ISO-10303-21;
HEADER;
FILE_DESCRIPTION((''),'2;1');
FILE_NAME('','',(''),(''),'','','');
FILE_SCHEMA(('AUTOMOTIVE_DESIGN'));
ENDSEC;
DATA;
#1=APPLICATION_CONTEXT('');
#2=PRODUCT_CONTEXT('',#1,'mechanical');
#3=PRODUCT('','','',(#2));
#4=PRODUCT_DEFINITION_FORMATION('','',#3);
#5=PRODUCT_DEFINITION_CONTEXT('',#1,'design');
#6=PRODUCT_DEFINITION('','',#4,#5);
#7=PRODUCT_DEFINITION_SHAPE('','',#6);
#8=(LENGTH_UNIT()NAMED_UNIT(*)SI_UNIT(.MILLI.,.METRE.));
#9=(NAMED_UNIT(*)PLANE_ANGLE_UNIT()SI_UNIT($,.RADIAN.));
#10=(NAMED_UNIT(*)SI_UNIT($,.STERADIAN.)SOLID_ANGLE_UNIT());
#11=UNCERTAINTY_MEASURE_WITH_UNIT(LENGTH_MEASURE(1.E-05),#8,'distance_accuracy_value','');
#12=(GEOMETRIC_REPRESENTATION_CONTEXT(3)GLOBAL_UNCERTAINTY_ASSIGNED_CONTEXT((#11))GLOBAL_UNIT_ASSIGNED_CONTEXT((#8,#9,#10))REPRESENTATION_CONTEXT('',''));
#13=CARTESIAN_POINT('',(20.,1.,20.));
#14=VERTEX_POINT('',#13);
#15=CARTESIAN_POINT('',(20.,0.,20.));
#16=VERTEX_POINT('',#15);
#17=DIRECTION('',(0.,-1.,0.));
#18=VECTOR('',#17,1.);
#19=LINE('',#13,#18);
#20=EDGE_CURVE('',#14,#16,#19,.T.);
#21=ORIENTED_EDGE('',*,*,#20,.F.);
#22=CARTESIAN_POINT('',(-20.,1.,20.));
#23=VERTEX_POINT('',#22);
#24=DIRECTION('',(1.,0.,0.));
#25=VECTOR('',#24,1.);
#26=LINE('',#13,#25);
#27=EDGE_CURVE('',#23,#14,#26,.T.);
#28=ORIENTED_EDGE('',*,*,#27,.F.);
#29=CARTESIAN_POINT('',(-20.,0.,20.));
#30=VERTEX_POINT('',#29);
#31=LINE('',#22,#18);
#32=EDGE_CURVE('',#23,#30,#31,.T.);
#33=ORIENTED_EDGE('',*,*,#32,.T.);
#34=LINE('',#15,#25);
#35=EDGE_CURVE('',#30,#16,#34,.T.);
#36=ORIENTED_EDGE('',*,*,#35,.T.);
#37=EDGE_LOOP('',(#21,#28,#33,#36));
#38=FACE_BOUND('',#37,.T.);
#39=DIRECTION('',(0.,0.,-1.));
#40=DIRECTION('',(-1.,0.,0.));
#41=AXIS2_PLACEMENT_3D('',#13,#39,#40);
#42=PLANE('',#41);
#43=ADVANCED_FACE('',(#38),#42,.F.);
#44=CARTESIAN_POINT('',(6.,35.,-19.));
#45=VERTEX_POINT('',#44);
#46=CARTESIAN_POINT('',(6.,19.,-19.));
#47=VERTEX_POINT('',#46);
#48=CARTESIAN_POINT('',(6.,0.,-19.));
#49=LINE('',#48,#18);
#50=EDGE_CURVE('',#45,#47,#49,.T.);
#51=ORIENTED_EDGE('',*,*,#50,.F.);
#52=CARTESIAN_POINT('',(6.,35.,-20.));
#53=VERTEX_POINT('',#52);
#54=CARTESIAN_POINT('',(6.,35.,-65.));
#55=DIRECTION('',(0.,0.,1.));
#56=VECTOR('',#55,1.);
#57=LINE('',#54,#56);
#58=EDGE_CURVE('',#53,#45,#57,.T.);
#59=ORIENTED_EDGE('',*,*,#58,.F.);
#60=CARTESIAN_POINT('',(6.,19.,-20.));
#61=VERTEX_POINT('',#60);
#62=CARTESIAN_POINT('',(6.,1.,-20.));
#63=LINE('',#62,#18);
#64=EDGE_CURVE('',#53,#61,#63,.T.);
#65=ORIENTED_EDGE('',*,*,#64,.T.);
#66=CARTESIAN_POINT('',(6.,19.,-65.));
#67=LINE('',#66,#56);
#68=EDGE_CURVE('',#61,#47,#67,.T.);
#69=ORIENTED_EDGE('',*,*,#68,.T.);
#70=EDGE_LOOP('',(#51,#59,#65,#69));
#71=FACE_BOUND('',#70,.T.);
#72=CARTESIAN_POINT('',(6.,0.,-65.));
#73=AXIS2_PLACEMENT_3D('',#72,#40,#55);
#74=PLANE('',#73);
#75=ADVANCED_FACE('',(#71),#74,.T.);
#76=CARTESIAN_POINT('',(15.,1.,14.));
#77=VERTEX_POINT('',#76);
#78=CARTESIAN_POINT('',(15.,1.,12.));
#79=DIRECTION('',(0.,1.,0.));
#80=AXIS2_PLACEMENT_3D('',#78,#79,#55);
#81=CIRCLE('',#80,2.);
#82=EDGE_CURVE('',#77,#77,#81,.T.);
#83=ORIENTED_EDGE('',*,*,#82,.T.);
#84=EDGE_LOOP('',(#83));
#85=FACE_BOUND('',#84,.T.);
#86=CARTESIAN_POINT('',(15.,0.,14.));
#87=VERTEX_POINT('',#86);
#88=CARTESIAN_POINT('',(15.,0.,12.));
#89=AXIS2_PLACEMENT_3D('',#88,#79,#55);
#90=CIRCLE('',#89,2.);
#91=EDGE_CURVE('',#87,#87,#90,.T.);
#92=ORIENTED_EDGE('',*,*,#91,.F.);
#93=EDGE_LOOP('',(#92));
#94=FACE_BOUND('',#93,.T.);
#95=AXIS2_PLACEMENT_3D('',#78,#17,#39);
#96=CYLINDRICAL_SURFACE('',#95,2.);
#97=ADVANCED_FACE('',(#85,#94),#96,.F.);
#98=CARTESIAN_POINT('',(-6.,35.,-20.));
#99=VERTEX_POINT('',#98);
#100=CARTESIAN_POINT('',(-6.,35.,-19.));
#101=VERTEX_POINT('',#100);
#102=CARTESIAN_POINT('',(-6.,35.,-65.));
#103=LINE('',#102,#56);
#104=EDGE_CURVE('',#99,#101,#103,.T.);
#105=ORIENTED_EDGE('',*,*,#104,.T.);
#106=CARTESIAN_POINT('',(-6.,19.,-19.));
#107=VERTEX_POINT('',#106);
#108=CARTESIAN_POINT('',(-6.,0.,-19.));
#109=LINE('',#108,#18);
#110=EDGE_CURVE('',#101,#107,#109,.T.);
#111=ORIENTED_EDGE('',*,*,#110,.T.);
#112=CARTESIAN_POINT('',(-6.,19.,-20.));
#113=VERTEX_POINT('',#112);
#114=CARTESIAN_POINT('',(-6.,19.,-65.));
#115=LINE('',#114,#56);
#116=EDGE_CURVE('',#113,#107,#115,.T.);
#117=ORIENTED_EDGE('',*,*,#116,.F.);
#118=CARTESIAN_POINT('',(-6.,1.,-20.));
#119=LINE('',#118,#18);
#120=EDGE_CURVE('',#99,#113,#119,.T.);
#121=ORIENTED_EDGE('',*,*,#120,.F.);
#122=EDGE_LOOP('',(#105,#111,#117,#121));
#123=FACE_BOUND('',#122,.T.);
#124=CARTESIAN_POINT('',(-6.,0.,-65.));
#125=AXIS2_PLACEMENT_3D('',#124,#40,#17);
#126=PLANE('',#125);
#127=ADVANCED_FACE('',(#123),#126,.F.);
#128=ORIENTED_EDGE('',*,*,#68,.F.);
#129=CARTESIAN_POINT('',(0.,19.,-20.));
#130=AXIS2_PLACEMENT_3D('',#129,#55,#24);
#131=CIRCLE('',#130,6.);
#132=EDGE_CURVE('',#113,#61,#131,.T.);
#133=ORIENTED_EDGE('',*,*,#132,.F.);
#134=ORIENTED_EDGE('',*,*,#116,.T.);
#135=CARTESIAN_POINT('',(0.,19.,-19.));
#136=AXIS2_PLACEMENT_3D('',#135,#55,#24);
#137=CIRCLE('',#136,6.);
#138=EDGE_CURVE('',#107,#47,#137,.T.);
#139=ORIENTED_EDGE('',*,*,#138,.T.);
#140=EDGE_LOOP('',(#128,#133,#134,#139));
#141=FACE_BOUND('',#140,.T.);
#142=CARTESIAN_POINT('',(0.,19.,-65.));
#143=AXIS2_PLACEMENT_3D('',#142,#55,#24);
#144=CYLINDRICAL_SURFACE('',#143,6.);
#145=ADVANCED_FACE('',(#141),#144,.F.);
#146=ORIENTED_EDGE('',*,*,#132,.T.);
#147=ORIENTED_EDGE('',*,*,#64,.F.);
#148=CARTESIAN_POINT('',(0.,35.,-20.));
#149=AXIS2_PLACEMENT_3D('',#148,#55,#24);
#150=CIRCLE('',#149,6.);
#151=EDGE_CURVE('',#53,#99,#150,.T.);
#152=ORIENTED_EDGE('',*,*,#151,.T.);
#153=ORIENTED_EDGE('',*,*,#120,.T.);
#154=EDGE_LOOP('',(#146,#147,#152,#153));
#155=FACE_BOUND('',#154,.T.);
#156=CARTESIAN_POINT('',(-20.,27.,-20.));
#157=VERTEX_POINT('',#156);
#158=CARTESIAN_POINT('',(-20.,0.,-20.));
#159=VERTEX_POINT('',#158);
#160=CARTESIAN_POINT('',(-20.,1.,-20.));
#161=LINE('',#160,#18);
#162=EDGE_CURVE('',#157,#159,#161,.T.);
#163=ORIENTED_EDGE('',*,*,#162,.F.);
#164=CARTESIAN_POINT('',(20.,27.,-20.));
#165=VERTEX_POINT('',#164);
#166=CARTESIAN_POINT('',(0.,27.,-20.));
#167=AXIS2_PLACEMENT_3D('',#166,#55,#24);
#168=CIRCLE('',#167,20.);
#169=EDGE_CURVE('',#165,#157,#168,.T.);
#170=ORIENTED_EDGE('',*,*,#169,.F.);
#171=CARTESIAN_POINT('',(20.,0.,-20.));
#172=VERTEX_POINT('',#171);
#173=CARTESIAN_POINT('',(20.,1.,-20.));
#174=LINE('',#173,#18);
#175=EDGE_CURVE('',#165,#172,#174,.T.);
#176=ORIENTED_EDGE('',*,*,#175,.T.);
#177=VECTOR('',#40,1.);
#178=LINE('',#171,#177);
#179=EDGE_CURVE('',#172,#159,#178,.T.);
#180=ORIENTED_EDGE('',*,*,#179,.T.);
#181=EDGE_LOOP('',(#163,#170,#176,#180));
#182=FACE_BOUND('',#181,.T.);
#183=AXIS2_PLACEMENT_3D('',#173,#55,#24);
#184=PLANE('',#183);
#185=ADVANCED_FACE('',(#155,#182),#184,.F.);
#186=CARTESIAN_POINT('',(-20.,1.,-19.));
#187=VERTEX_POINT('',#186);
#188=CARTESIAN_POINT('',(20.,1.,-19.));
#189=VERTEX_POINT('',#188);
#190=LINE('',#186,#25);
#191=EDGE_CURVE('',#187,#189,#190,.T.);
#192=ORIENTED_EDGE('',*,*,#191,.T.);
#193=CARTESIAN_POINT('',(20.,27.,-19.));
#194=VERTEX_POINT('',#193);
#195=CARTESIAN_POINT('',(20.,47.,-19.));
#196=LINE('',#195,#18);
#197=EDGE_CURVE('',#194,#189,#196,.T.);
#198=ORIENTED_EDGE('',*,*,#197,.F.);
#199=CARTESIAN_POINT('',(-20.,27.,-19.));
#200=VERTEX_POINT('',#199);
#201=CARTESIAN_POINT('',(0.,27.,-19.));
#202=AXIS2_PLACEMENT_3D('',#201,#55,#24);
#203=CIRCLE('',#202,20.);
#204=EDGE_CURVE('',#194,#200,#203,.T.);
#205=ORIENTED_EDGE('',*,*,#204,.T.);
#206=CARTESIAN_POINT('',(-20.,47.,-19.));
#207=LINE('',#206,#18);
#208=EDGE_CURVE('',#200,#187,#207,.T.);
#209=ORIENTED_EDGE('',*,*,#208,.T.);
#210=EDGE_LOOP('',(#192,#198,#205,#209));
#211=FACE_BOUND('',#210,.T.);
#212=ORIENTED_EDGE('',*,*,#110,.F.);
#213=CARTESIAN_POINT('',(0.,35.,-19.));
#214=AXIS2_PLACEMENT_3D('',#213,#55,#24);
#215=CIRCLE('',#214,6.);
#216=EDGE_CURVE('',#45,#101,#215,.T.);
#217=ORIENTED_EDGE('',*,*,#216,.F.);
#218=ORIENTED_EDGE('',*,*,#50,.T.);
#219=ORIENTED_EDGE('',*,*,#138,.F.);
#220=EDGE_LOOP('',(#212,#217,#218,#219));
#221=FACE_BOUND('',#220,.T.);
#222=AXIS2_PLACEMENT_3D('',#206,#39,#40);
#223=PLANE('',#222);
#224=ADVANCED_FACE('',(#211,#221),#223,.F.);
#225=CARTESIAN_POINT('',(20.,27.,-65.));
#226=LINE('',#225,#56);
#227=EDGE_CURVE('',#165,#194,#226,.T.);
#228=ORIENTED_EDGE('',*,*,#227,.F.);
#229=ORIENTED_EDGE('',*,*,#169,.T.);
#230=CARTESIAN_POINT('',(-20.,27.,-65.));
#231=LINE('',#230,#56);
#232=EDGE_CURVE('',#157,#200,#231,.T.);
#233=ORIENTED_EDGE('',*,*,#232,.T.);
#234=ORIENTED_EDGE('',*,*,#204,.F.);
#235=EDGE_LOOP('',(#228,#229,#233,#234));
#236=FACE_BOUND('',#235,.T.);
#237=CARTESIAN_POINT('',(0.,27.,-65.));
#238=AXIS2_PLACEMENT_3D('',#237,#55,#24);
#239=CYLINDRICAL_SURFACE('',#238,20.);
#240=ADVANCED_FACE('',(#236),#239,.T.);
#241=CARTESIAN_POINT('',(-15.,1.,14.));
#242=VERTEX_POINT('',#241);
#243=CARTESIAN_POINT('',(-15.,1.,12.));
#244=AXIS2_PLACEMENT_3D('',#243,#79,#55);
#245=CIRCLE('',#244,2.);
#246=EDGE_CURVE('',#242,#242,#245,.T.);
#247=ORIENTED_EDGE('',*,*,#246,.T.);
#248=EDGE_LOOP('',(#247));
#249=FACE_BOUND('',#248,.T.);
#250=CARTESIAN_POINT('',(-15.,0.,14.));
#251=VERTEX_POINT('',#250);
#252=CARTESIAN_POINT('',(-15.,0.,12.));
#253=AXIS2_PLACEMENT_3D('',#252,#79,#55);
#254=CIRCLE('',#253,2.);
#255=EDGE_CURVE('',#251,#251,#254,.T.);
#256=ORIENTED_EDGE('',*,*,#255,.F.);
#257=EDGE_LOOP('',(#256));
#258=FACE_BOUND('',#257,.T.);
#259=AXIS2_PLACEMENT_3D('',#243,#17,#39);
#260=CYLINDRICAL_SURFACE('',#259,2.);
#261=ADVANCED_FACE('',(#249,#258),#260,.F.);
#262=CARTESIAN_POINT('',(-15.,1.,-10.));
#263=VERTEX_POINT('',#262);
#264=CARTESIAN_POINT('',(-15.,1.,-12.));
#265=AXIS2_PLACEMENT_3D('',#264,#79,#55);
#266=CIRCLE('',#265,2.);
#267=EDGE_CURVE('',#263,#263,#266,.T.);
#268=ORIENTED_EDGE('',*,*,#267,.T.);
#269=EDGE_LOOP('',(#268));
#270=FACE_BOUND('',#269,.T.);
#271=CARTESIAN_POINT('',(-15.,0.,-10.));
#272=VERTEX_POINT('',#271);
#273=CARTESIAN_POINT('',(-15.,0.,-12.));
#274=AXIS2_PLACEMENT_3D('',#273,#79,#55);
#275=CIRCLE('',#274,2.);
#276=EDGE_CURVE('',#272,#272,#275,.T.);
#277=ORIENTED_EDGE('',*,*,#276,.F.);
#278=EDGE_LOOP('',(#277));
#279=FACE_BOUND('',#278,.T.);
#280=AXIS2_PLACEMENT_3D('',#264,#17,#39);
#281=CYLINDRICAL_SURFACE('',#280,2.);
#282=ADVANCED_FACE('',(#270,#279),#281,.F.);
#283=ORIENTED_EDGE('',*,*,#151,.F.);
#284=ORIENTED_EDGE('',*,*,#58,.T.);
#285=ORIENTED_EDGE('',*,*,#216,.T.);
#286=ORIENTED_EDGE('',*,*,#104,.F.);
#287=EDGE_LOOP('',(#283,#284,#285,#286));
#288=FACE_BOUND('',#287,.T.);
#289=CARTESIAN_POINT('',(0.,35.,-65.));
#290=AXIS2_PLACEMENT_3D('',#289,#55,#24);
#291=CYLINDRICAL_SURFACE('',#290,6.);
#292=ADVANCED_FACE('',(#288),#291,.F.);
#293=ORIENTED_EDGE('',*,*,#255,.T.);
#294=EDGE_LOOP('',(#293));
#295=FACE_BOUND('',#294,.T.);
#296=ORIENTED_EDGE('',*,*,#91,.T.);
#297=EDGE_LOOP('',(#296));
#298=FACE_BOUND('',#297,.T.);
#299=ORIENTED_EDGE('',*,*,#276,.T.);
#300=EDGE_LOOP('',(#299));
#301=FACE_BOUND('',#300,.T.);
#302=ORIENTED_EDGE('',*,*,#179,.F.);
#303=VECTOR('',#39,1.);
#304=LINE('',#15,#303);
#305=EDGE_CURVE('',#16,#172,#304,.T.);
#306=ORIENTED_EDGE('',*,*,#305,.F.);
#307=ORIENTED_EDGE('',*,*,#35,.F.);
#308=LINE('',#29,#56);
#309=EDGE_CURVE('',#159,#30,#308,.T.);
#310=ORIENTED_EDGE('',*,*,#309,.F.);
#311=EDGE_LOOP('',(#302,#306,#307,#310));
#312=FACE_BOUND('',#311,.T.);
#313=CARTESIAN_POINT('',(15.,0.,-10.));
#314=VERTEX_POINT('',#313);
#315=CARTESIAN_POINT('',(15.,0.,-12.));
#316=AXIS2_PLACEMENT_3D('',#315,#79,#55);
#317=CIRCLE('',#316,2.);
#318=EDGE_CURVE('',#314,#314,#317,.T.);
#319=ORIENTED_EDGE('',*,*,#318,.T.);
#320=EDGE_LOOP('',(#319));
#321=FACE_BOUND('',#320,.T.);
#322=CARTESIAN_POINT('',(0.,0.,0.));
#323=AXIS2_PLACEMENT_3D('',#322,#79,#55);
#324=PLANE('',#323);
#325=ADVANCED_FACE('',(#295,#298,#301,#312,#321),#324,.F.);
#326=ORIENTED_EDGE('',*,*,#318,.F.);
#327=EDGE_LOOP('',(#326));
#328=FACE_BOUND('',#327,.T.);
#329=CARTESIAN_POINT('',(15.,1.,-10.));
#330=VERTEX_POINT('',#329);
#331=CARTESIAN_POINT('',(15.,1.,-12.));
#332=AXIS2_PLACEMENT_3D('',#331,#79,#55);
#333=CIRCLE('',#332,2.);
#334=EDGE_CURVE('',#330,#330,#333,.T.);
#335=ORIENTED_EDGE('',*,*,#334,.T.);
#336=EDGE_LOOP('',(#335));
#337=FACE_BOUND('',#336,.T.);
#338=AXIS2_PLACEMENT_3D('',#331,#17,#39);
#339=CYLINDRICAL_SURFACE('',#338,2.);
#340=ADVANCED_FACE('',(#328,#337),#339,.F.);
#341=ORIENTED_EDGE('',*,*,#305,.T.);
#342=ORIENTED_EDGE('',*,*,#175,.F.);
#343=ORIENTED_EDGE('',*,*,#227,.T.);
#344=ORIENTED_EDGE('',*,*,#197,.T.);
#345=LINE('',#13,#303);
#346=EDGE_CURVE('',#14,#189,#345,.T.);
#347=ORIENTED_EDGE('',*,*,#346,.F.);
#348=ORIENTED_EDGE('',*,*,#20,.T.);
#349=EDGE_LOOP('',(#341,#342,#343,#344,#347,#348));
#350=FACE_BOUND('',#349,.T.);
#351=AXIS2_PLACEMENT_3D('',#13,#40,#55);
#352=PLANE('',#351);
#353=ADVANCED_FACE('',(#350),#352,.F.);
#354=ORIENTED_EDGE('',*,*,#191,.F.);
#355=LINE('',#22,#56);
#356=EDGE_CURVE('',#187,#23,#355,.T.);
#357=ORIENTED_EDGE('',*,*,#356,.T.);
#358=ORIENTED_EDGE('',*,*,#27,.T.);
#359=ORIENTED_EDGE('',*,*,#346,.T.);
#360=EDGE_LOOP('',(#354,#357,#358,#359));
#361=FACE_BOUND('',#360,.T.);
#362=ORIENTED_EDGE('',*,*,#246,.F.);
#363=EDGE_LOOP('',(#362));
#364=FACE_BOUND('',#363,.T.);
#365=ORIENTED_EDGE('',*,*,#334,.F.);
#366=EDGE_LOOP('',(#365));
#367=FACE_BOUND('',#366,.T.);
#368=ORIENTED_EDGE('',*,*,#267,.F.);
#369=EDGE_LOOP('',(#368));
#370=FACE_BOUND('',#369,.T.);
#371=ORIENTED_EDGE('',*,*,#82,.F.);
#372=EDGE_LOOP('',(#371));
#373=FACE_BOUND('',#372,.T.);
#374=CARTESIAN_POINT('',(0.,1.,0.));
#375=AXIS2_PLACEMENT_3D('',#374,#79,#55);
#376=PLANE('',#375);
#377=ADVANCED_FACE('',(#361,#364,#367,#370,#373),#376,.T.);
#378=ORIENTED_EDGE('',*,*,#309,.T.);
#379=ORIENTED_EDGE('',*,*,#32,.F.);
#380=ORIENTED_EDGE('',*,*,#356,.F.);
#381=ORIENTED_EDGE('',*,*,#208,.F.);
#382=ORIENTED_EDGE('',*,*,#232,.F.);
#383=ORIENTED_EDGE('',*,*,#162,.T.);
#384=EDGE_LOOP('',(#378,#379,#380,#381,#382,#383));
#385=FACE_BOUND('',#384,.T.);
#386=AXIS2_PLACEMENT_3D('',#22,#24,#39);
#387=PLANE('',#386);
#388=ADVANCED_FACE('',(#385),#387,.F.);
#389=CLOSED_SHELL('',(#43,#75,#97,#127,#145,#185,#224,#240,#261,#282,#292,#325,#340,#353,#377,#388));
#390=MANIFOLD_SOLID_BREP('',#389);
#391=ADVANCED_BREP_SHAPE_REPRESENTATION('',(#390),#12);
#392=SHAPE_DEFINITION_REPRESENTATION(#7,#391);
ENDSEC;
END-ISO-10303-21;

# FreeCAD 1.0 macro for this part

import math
import FreeCAD as App
import Part
import Sketcher
from FreeCAD import Vector
Q = App.Units.Quantity


def add_polygon(sketch, points):
    """Adds a closed chain of lines whose ends are joined by coincident constraints."""
    first, n = sketch.GeometryCount, len(points)
    for a, b in zip(points, points[1:] + points[:1]):
        sketch.addGeometry(Part.LineSegment(App.Vector(*a, 0), App.Vector(*b, 0)), False)
    for i in range(n):
        sketch.addConstraint(Sketcher.Constraint("Coincident", first + i, 2, first + (i + 1) % n, 1))

doc = App.newDocument("Part")
body = doc.addObject("PartDesign::Body", "Body")

# Sketch on XZ plane
sketch1 = body.newObject("Sketcher::SketchObject", "Sketch")
sketch1.AttachmentSupport = (doc.getObject("XZ_Plane"), [""])
sketch1.MapMode = "FlatFace"
add_polygon(sketch1, [(-20, -20), (-20, 20), (20, 20), (20, -20)])  # lines 0-3
sketch1.addGeometry(Part.Circle(Vector(-15, 12, 0), Vector(0, 0, 1), 2), False)  # 4
sketch1.addGeometry(Part.Circle(Vector(15, 12, 0), Vector(0, 0, 1), 2), False)  # 5
sketch1.addGeometry(Part.Circle(Vector(-15, -12, 0), Vector(0, 0, 1), 2), False)  # 6
sketch1.addGeometry(Part.Circle(Vector(15, -12, 0), Vector(0, 0, 1), 2), False)  # 7
sketch1.addConstraint([
    Sketcher.Constraint("Vertical", 0),
    Sketcher.Constraint("Horizontal", 1),
    Sketcher.Constraint("Vertical", 2),
    Sketcher.Constraint("Horizontal", 3),
    Sketcher.Constraint("Equal", 4, 5),
    Sketcher.Constraint("Equal", 5, 6),
    Sketcher.Constraint("Equal", 6, 7),
    Sketcher.Constraint("Symmetric", 5, 3, 6, 3, -1, 1),
    Sketcher.Constraint("Symmetric", 4, 3, 7, 3, -1, 1),
    Sketcher.Constraint("Symmetric", 0, 2, 2, 2, -1, 1),
    Sketcher.Constraint("Symmetric", 4, 3, 5, 3, -2),
    Sketcher.Constraint("Equal", 3, 0),
    Sketcher.Constraint("Diameter", 4, Q("4 mm")),
    Sketcher.Constraint("DistanceX", 1, 1, 1, 2, Q("40 mm")),
    Sketcher.Constraint("DistanceX", 4, 3, -1, 1, Q("15 mm")),
    Sketcher.Constraint("DistanceY", -1, 1, 4, 3, Q("12 mm")),
])
pad1 = body.newObject("PartDesign::Pad", "Pad")
pad1.Profile = sketch1
pad1.Length = 1
pad1.Reversed = True

# Sketch on XZ plane
sketch2 = body.newObject("Sketcher::SketchObject", "Sketch001")
sketch2.AttachmentSupport = (doc.getObject("XZ_Plane"), [""])
sketch2.MapMode = "FlatFace"
sketch2.AttachmentOffset = App.Placement(Vector(0, 0, -1), App.Rotation())
add_polygon(sketch2, [(-20, -20), (-20, -19), (20, -19), (20, -20)])  # lines 0-3
sketch2.addConstraint([
    Sketcher.Constraint("Vertical", 0),
    Sketcher.Constraint("Horizontal", 1),
    Sketcher.Constraint("Vertical", 2),
    Sketcher.Constraint("Horizontal", 3),
    Sketcher.Constraint("DistanceX", 1, 1, 1, 2, Q("40 mm")),
    Sketcher.Constraint("DistanceY", 0, 1, 0, 2, Q("1 mm")),
    Sketcher.Constraint("DistanceX", 0, 2, -1, 1, Q("20 mm")),
    Sketcher.Constraint("DistanceY", 0, 2, -1, 1, Q("19 mm")),
])
pad2 = body.newObject("PartDesign::Pad", "Pad001")
pad2.Profile = sketch2
pad2.Length = 46
pad2.Reversed = True

# Sketch on XY plane
sketch3 = body.newObject("Sketcher::SketchObject", "Sketch002")
sketch3.AttachmentSupport = (doc.getObject("XY_Plane"), [""])
sketch3.MapMode = "FlatFace"
sketch3.AttachmentOffset = App.Placement(Vector(0, 0, -19), App.Rotation())
sketch3.addGeometry([
    Part.LineSegment(Vector(6, 19, 0), Vector(6, 35, 0)),  # 0
    Part.ArcOfCircle(Part.Circle(Vector(0, 35, 0), Vector(0, 0, 1), 6), math.radians(0), math.radians(180)),  # 1
    Part.LineSegment(Vector(-6, 35, 0), Vector(-6, 19, 0)),  # 2
    Part.ArcOfCircle(Part.Circle(Vector(0, 19, 0), Vector(0, 0, 1), 6), math.radians(180), math.radians(360)),  # 3
    Part.LineSegment(Vector(-20, 47, 0), Vector(-20, 27, 0)),  # 4
    Part.ArcOfCircle(Part.Circle(Vector(0, 27, 0), Vector(0, 0, 1), 20), math.radians(90), math.radians(180)),  # 5
    Part.LineSegment(Vector(0, 47, 0), Vector(-20, 47, 0)),  # 6
    Part.ArcOfCircle(Part.Circle(Vector(0, 27, 0), Vector(0, 0, 1), 20), math.radians(0), math.radians(90)),  # 7
    Part.LineSegment(Vector(20, 27, 0), Vector(20, 47, 0)),  # 8
    Part.LineSegment(Vector(20, 47, 0), Vector(0, 47, 0)),  # 9
], False)
sketch3.addConstraint([
    Sketcher.Constraint("Tangent", 0, 2, 1, 1),
    Sketcher.Constraint("Tangent", 1, 2, 2, 1),
    Sketcher.Constraint("Tangent", 2, 2, 3, 1),
    Sketcher.Constraint("Tangent", 3, 2, 0, 1),
    Sketcher.Constraint("Tangent", 4, 2, 5, 2),
    Sketcher.Constraint("Tangent", 5, 1, 6, 1),
    Sketcher.Constraint("Coincident", 6, 2, 4, 1),
    Sketcher.Constraint("Tangent", 7, 1, 8, 1),
    Sketcher.Constraint("Coincident", 8, 2, 9, 1),
    Sketcher.Constraint("Tangent", 9, 2, 7, 2),
    Sketcher.Constraint("Vertical", 0),
    Sketcher.Constraint("Vertical", 2),
    Sketcher.Constraint("Vertical", 4),
    Sketcher.Constraint("Horizontal", 6),
    Sketcher.Constraint("Vertical", 8),
    Sketcher.Constraint("Horizontal", 9),
    Sketcher.Constraint("Coincident", 7, 3, 5, 3),
    Sketcher.Constraint("Equal", 5, 7),
    Sketcher.Constraint("PointOnObject", 1, 3, -2),
    Sketcher.Constraint("PointOnObject", 5, 3, -2),
    Sketcher.Constraint("Radius", 1, Q("6 mm")),
    Sketcher.Constraint("Radius", 5, Q("20 mm")),
    Sketcher.Constraint("DistanceY", 0, 1, 0, 2, Q("16 mm")),
    Sketcher.Constraint("DistanceY", -1, 1, 1, 3, Q("35 mm")),
    Sketcher.Constraint("DistanceY", -1, 1, 5, 3, Q("27 mm")),
])
pocket1 = body.newObject("PartDesign::Pocket", "Pocket")
pocket1.Profile = sketch3
pocket1.Length = 46

doc.recompute()
